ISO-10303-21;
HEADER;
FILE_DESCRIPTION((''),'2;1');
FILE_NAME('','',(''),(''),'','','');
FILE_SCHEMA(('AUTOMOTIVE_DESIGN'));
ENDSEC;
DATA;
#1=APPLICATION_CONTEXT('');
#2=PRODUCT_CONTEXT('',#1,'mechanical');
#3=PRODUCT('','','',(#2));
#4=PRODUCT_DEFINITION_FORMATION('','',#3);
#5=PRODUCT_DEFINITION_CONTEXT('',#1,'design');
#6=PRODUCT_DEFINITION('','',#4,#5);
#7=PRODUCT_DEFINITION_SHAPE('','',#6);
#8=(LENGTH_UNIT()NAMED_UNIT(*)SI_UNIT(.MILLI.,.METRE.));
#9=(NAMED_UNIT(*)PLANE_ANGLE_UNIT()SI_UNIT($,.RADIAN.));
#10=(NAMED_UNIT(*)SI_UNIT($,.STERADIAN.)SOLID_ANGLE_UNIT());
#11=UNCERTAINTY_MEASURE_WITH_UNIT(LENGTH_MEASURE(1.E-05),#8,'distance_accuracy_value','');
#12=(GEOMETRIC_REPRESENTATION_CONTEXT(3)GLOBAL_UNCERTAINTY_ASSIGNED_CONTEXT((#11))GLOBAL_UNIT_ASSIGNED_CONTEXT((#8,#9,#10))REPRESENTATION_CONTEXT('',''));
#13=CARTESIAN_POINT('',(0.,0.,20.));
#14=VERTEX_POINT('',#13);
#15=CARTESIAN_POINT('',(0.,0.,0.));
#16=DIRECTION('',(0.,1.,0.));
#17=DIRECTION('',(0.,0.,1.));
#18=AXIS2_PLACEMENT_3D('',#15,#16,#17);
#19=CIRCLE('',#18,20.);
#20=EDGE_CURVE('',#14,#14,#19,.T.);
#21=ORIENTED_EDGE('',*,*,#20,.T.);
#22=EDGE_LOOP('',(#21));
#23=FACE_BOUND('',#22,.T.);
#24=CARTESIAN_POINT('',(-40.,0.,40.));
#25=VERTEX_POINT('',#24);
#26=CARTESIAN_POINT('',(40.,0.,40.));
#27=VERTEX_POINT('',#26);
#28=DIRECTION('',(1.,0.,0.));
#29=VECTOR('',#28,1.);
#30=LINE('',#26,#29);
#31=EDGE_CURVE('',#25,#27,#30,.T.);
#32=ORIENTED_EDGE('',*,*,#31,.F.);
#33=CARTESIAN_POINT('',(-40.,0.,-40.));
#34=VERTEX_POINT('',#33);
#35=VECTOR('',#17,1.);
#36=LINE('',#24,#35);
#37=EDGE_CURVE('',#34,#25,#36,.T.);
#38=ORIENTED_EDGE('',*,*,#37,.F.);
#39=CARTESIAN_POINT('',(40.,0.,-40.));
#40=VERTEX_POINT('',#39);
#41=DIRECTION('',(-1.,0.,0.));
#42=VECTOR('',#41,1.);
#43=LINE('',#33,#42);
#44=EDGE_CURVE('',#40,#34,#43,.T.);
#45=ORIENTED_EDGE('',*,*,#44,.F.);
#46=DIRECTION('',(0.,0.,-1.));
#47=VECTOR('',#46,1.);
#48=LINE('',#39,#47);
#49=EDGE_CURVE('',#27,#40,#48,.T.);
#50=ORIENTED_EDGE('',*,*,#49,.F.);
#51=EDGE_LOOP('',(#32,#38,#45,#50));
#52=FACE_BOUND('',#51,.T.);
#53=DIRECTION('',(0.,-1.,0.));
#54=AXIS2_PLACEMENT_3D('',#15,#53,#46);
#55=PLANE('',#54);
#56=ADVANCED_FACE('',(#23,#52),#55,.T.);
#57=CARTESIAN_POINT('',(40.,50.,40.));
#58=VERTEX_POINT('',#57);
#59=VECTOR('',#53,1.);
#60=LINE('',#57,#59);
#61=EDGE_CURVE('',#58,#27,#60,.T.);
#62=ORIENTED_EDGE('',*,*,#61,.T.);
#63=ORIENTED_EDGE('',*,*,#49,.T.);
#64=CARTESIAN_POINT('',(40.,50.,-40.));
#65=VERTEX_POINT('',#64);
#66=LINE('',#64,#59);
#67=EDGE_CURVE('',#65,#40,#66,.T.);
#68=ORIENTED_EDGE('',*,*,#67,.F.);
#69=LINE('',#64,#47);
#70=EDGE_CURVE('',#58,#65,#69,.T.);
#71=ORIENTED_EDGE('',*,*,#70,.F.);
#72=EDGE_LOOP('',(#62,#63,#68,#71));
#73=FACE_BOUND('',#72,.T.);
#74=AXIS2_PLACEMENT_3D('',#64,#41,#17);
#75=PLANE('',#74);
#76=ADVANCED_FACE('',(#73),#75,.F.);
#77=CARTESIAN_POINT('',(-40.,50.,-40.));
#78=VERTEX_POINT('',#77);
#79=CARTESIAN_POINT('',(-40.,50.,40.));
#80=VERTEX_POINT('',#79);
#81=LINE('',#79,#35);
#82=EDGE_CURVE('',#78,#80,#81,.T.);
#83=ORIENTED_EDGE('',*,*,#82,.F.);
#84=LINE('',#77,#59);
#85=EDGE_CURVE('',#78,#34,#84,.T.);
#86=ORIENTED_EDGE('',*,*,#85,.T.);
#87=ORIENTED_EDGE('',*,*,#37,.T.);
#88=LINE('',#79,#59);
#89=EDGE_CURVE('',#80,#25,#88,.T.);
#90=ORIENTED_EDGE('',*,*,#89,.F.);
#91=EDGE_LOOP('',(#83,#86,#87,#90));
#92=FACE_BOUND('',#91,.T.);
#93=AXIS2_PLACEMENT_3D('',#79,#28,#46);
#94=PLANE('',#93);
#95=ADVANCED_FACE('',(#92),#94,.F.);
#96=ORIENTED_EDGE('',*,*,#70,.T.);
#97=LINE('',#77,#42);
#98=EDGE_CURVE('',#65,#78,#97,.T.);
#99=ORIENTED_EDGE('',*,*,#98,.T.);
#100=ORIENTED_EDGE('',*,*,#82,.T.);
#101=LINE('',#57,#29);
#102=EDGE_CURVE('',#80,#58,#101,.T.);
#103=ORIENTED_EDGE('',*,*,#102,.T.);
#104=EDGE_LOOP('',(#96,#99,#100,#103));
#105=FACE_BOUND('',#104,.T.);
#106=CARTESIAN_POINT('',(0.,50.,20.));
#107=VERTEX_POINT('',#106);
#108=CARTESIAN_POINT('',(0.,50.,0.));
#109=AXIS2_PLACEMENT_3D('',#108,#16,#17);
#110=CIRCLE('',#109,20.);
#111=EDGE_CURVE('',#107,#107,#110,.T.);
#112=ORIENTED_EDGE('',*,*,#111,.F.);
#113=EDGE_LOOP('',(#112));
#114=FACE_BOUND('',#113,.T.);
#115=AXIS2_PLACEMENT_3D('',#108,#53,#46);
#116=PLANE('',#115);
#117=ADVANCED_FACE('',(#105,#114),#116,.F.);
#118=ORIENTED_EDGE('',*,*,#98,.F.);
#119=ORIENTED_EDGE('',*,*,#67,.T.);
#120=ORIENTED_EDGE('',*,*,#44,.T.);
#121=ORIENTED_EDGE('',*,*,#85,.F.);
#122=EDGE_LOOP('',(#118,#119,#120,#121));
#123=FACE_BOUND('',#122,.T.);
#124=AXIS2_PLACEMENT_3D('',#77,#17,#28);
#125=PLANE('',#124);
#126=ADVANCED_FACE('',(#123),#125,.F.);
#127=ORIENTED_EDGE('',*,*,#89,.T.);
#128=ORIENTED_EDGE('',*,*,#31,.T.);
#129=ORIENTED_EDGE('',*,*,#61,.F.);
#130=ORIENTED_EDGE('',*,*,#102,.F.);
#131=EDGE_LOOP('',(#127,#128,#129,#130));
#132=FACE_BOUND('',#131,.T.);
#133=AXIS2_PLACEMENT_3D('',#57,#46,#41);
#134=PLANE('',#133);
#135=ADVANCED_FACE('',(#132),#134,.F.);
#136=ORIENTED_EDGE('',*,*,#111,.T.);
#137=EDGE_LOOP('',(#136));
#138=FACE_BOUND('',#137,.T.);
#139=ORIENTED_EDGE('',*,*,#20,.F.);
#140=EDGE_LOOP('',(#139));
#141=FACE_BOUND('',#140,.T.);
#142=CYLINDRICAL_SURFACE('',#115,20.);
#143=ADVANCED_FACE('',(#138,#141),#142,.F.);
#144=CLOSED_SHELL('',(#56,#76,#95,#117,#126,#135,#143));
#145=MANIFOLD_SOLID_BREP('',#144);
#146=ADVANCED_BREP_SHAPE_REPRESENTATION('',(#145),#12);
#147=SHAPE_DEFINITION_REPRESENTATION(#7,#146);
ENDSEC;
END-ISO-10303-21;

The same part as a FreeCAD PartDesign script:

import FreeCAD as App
import Part
import Sketcher


def add_polygon(sketch, points):
    """Adds a closed chain of lines whose ends are joined by coincident constraints."""
    first, n = sketch.GeometryCount, len(points)
    for a, b in zip(points, points[1:] + points[:1]):
        sketch.addGeometry(Part.LineSegment(App.Vector(*a, 0), App.Vector(*b, 0)), False)
    for i in range(n):
        sketch.addConstraint(Sketcher.Constraint("Coincident", first + i, 2, first + (i + 1) % n, 1))

doc = App.newDocument("Part")
body = doc.addObject("PartDesign::Body", "Body")

# Sketch on XZ plane
sketch1 = body.newObject("Sketcher::SketchObject", "Sketch")
sketch1.AttachmentSupport = (doc.getObject("XZ_Plane"), [""])
sketch1.MapMode = "FlatFace"
add_polygon(sketch1, [(-40, -40), (-40, 40), (40, 40), (40, -40)])  # lines 0-3
sketch1.addGeometry(Part.Circle(App.Vector(0, 0, 0), App.Vector(0, 0, 1), 20), False)  # 4
sketch1.addConstraint(Sketcher.Constraint("Vertical", 0))
sketch1.addConstraint(Sketcher.Constraint("Horizontal", 1))
sketch1.addConstraint(Sketcher.Constraint("Vertical", 2))
sketch1.addConstraint(Sketcher.Constraint("Horizontal", 3))
sketch1.addConstraint(Sketcher.Constraint("Coincident", 4, 3, -1, 1))
sketch1.addConstraint(Sketcher.Constraint("Symmetric", 0, 2, 2, 2, -1, 1))
sketch1.addConstraint(Sketcher.Constraint("Equal", 3, 0))
sketch1.addConstraint(Sketcher.Constraint("Diameter", 4, 40.0))
sketch1.addConstraint(Sketcher.Constraint("DistanceX", 1, 1, 1, 2, 80.0))
pad1 = body.newObject("PartDesign::Pad", "Pad")
pad1.Profile = sketch1
pad1.Length = 50
pad1.Reversed = True

doc.recompute()
